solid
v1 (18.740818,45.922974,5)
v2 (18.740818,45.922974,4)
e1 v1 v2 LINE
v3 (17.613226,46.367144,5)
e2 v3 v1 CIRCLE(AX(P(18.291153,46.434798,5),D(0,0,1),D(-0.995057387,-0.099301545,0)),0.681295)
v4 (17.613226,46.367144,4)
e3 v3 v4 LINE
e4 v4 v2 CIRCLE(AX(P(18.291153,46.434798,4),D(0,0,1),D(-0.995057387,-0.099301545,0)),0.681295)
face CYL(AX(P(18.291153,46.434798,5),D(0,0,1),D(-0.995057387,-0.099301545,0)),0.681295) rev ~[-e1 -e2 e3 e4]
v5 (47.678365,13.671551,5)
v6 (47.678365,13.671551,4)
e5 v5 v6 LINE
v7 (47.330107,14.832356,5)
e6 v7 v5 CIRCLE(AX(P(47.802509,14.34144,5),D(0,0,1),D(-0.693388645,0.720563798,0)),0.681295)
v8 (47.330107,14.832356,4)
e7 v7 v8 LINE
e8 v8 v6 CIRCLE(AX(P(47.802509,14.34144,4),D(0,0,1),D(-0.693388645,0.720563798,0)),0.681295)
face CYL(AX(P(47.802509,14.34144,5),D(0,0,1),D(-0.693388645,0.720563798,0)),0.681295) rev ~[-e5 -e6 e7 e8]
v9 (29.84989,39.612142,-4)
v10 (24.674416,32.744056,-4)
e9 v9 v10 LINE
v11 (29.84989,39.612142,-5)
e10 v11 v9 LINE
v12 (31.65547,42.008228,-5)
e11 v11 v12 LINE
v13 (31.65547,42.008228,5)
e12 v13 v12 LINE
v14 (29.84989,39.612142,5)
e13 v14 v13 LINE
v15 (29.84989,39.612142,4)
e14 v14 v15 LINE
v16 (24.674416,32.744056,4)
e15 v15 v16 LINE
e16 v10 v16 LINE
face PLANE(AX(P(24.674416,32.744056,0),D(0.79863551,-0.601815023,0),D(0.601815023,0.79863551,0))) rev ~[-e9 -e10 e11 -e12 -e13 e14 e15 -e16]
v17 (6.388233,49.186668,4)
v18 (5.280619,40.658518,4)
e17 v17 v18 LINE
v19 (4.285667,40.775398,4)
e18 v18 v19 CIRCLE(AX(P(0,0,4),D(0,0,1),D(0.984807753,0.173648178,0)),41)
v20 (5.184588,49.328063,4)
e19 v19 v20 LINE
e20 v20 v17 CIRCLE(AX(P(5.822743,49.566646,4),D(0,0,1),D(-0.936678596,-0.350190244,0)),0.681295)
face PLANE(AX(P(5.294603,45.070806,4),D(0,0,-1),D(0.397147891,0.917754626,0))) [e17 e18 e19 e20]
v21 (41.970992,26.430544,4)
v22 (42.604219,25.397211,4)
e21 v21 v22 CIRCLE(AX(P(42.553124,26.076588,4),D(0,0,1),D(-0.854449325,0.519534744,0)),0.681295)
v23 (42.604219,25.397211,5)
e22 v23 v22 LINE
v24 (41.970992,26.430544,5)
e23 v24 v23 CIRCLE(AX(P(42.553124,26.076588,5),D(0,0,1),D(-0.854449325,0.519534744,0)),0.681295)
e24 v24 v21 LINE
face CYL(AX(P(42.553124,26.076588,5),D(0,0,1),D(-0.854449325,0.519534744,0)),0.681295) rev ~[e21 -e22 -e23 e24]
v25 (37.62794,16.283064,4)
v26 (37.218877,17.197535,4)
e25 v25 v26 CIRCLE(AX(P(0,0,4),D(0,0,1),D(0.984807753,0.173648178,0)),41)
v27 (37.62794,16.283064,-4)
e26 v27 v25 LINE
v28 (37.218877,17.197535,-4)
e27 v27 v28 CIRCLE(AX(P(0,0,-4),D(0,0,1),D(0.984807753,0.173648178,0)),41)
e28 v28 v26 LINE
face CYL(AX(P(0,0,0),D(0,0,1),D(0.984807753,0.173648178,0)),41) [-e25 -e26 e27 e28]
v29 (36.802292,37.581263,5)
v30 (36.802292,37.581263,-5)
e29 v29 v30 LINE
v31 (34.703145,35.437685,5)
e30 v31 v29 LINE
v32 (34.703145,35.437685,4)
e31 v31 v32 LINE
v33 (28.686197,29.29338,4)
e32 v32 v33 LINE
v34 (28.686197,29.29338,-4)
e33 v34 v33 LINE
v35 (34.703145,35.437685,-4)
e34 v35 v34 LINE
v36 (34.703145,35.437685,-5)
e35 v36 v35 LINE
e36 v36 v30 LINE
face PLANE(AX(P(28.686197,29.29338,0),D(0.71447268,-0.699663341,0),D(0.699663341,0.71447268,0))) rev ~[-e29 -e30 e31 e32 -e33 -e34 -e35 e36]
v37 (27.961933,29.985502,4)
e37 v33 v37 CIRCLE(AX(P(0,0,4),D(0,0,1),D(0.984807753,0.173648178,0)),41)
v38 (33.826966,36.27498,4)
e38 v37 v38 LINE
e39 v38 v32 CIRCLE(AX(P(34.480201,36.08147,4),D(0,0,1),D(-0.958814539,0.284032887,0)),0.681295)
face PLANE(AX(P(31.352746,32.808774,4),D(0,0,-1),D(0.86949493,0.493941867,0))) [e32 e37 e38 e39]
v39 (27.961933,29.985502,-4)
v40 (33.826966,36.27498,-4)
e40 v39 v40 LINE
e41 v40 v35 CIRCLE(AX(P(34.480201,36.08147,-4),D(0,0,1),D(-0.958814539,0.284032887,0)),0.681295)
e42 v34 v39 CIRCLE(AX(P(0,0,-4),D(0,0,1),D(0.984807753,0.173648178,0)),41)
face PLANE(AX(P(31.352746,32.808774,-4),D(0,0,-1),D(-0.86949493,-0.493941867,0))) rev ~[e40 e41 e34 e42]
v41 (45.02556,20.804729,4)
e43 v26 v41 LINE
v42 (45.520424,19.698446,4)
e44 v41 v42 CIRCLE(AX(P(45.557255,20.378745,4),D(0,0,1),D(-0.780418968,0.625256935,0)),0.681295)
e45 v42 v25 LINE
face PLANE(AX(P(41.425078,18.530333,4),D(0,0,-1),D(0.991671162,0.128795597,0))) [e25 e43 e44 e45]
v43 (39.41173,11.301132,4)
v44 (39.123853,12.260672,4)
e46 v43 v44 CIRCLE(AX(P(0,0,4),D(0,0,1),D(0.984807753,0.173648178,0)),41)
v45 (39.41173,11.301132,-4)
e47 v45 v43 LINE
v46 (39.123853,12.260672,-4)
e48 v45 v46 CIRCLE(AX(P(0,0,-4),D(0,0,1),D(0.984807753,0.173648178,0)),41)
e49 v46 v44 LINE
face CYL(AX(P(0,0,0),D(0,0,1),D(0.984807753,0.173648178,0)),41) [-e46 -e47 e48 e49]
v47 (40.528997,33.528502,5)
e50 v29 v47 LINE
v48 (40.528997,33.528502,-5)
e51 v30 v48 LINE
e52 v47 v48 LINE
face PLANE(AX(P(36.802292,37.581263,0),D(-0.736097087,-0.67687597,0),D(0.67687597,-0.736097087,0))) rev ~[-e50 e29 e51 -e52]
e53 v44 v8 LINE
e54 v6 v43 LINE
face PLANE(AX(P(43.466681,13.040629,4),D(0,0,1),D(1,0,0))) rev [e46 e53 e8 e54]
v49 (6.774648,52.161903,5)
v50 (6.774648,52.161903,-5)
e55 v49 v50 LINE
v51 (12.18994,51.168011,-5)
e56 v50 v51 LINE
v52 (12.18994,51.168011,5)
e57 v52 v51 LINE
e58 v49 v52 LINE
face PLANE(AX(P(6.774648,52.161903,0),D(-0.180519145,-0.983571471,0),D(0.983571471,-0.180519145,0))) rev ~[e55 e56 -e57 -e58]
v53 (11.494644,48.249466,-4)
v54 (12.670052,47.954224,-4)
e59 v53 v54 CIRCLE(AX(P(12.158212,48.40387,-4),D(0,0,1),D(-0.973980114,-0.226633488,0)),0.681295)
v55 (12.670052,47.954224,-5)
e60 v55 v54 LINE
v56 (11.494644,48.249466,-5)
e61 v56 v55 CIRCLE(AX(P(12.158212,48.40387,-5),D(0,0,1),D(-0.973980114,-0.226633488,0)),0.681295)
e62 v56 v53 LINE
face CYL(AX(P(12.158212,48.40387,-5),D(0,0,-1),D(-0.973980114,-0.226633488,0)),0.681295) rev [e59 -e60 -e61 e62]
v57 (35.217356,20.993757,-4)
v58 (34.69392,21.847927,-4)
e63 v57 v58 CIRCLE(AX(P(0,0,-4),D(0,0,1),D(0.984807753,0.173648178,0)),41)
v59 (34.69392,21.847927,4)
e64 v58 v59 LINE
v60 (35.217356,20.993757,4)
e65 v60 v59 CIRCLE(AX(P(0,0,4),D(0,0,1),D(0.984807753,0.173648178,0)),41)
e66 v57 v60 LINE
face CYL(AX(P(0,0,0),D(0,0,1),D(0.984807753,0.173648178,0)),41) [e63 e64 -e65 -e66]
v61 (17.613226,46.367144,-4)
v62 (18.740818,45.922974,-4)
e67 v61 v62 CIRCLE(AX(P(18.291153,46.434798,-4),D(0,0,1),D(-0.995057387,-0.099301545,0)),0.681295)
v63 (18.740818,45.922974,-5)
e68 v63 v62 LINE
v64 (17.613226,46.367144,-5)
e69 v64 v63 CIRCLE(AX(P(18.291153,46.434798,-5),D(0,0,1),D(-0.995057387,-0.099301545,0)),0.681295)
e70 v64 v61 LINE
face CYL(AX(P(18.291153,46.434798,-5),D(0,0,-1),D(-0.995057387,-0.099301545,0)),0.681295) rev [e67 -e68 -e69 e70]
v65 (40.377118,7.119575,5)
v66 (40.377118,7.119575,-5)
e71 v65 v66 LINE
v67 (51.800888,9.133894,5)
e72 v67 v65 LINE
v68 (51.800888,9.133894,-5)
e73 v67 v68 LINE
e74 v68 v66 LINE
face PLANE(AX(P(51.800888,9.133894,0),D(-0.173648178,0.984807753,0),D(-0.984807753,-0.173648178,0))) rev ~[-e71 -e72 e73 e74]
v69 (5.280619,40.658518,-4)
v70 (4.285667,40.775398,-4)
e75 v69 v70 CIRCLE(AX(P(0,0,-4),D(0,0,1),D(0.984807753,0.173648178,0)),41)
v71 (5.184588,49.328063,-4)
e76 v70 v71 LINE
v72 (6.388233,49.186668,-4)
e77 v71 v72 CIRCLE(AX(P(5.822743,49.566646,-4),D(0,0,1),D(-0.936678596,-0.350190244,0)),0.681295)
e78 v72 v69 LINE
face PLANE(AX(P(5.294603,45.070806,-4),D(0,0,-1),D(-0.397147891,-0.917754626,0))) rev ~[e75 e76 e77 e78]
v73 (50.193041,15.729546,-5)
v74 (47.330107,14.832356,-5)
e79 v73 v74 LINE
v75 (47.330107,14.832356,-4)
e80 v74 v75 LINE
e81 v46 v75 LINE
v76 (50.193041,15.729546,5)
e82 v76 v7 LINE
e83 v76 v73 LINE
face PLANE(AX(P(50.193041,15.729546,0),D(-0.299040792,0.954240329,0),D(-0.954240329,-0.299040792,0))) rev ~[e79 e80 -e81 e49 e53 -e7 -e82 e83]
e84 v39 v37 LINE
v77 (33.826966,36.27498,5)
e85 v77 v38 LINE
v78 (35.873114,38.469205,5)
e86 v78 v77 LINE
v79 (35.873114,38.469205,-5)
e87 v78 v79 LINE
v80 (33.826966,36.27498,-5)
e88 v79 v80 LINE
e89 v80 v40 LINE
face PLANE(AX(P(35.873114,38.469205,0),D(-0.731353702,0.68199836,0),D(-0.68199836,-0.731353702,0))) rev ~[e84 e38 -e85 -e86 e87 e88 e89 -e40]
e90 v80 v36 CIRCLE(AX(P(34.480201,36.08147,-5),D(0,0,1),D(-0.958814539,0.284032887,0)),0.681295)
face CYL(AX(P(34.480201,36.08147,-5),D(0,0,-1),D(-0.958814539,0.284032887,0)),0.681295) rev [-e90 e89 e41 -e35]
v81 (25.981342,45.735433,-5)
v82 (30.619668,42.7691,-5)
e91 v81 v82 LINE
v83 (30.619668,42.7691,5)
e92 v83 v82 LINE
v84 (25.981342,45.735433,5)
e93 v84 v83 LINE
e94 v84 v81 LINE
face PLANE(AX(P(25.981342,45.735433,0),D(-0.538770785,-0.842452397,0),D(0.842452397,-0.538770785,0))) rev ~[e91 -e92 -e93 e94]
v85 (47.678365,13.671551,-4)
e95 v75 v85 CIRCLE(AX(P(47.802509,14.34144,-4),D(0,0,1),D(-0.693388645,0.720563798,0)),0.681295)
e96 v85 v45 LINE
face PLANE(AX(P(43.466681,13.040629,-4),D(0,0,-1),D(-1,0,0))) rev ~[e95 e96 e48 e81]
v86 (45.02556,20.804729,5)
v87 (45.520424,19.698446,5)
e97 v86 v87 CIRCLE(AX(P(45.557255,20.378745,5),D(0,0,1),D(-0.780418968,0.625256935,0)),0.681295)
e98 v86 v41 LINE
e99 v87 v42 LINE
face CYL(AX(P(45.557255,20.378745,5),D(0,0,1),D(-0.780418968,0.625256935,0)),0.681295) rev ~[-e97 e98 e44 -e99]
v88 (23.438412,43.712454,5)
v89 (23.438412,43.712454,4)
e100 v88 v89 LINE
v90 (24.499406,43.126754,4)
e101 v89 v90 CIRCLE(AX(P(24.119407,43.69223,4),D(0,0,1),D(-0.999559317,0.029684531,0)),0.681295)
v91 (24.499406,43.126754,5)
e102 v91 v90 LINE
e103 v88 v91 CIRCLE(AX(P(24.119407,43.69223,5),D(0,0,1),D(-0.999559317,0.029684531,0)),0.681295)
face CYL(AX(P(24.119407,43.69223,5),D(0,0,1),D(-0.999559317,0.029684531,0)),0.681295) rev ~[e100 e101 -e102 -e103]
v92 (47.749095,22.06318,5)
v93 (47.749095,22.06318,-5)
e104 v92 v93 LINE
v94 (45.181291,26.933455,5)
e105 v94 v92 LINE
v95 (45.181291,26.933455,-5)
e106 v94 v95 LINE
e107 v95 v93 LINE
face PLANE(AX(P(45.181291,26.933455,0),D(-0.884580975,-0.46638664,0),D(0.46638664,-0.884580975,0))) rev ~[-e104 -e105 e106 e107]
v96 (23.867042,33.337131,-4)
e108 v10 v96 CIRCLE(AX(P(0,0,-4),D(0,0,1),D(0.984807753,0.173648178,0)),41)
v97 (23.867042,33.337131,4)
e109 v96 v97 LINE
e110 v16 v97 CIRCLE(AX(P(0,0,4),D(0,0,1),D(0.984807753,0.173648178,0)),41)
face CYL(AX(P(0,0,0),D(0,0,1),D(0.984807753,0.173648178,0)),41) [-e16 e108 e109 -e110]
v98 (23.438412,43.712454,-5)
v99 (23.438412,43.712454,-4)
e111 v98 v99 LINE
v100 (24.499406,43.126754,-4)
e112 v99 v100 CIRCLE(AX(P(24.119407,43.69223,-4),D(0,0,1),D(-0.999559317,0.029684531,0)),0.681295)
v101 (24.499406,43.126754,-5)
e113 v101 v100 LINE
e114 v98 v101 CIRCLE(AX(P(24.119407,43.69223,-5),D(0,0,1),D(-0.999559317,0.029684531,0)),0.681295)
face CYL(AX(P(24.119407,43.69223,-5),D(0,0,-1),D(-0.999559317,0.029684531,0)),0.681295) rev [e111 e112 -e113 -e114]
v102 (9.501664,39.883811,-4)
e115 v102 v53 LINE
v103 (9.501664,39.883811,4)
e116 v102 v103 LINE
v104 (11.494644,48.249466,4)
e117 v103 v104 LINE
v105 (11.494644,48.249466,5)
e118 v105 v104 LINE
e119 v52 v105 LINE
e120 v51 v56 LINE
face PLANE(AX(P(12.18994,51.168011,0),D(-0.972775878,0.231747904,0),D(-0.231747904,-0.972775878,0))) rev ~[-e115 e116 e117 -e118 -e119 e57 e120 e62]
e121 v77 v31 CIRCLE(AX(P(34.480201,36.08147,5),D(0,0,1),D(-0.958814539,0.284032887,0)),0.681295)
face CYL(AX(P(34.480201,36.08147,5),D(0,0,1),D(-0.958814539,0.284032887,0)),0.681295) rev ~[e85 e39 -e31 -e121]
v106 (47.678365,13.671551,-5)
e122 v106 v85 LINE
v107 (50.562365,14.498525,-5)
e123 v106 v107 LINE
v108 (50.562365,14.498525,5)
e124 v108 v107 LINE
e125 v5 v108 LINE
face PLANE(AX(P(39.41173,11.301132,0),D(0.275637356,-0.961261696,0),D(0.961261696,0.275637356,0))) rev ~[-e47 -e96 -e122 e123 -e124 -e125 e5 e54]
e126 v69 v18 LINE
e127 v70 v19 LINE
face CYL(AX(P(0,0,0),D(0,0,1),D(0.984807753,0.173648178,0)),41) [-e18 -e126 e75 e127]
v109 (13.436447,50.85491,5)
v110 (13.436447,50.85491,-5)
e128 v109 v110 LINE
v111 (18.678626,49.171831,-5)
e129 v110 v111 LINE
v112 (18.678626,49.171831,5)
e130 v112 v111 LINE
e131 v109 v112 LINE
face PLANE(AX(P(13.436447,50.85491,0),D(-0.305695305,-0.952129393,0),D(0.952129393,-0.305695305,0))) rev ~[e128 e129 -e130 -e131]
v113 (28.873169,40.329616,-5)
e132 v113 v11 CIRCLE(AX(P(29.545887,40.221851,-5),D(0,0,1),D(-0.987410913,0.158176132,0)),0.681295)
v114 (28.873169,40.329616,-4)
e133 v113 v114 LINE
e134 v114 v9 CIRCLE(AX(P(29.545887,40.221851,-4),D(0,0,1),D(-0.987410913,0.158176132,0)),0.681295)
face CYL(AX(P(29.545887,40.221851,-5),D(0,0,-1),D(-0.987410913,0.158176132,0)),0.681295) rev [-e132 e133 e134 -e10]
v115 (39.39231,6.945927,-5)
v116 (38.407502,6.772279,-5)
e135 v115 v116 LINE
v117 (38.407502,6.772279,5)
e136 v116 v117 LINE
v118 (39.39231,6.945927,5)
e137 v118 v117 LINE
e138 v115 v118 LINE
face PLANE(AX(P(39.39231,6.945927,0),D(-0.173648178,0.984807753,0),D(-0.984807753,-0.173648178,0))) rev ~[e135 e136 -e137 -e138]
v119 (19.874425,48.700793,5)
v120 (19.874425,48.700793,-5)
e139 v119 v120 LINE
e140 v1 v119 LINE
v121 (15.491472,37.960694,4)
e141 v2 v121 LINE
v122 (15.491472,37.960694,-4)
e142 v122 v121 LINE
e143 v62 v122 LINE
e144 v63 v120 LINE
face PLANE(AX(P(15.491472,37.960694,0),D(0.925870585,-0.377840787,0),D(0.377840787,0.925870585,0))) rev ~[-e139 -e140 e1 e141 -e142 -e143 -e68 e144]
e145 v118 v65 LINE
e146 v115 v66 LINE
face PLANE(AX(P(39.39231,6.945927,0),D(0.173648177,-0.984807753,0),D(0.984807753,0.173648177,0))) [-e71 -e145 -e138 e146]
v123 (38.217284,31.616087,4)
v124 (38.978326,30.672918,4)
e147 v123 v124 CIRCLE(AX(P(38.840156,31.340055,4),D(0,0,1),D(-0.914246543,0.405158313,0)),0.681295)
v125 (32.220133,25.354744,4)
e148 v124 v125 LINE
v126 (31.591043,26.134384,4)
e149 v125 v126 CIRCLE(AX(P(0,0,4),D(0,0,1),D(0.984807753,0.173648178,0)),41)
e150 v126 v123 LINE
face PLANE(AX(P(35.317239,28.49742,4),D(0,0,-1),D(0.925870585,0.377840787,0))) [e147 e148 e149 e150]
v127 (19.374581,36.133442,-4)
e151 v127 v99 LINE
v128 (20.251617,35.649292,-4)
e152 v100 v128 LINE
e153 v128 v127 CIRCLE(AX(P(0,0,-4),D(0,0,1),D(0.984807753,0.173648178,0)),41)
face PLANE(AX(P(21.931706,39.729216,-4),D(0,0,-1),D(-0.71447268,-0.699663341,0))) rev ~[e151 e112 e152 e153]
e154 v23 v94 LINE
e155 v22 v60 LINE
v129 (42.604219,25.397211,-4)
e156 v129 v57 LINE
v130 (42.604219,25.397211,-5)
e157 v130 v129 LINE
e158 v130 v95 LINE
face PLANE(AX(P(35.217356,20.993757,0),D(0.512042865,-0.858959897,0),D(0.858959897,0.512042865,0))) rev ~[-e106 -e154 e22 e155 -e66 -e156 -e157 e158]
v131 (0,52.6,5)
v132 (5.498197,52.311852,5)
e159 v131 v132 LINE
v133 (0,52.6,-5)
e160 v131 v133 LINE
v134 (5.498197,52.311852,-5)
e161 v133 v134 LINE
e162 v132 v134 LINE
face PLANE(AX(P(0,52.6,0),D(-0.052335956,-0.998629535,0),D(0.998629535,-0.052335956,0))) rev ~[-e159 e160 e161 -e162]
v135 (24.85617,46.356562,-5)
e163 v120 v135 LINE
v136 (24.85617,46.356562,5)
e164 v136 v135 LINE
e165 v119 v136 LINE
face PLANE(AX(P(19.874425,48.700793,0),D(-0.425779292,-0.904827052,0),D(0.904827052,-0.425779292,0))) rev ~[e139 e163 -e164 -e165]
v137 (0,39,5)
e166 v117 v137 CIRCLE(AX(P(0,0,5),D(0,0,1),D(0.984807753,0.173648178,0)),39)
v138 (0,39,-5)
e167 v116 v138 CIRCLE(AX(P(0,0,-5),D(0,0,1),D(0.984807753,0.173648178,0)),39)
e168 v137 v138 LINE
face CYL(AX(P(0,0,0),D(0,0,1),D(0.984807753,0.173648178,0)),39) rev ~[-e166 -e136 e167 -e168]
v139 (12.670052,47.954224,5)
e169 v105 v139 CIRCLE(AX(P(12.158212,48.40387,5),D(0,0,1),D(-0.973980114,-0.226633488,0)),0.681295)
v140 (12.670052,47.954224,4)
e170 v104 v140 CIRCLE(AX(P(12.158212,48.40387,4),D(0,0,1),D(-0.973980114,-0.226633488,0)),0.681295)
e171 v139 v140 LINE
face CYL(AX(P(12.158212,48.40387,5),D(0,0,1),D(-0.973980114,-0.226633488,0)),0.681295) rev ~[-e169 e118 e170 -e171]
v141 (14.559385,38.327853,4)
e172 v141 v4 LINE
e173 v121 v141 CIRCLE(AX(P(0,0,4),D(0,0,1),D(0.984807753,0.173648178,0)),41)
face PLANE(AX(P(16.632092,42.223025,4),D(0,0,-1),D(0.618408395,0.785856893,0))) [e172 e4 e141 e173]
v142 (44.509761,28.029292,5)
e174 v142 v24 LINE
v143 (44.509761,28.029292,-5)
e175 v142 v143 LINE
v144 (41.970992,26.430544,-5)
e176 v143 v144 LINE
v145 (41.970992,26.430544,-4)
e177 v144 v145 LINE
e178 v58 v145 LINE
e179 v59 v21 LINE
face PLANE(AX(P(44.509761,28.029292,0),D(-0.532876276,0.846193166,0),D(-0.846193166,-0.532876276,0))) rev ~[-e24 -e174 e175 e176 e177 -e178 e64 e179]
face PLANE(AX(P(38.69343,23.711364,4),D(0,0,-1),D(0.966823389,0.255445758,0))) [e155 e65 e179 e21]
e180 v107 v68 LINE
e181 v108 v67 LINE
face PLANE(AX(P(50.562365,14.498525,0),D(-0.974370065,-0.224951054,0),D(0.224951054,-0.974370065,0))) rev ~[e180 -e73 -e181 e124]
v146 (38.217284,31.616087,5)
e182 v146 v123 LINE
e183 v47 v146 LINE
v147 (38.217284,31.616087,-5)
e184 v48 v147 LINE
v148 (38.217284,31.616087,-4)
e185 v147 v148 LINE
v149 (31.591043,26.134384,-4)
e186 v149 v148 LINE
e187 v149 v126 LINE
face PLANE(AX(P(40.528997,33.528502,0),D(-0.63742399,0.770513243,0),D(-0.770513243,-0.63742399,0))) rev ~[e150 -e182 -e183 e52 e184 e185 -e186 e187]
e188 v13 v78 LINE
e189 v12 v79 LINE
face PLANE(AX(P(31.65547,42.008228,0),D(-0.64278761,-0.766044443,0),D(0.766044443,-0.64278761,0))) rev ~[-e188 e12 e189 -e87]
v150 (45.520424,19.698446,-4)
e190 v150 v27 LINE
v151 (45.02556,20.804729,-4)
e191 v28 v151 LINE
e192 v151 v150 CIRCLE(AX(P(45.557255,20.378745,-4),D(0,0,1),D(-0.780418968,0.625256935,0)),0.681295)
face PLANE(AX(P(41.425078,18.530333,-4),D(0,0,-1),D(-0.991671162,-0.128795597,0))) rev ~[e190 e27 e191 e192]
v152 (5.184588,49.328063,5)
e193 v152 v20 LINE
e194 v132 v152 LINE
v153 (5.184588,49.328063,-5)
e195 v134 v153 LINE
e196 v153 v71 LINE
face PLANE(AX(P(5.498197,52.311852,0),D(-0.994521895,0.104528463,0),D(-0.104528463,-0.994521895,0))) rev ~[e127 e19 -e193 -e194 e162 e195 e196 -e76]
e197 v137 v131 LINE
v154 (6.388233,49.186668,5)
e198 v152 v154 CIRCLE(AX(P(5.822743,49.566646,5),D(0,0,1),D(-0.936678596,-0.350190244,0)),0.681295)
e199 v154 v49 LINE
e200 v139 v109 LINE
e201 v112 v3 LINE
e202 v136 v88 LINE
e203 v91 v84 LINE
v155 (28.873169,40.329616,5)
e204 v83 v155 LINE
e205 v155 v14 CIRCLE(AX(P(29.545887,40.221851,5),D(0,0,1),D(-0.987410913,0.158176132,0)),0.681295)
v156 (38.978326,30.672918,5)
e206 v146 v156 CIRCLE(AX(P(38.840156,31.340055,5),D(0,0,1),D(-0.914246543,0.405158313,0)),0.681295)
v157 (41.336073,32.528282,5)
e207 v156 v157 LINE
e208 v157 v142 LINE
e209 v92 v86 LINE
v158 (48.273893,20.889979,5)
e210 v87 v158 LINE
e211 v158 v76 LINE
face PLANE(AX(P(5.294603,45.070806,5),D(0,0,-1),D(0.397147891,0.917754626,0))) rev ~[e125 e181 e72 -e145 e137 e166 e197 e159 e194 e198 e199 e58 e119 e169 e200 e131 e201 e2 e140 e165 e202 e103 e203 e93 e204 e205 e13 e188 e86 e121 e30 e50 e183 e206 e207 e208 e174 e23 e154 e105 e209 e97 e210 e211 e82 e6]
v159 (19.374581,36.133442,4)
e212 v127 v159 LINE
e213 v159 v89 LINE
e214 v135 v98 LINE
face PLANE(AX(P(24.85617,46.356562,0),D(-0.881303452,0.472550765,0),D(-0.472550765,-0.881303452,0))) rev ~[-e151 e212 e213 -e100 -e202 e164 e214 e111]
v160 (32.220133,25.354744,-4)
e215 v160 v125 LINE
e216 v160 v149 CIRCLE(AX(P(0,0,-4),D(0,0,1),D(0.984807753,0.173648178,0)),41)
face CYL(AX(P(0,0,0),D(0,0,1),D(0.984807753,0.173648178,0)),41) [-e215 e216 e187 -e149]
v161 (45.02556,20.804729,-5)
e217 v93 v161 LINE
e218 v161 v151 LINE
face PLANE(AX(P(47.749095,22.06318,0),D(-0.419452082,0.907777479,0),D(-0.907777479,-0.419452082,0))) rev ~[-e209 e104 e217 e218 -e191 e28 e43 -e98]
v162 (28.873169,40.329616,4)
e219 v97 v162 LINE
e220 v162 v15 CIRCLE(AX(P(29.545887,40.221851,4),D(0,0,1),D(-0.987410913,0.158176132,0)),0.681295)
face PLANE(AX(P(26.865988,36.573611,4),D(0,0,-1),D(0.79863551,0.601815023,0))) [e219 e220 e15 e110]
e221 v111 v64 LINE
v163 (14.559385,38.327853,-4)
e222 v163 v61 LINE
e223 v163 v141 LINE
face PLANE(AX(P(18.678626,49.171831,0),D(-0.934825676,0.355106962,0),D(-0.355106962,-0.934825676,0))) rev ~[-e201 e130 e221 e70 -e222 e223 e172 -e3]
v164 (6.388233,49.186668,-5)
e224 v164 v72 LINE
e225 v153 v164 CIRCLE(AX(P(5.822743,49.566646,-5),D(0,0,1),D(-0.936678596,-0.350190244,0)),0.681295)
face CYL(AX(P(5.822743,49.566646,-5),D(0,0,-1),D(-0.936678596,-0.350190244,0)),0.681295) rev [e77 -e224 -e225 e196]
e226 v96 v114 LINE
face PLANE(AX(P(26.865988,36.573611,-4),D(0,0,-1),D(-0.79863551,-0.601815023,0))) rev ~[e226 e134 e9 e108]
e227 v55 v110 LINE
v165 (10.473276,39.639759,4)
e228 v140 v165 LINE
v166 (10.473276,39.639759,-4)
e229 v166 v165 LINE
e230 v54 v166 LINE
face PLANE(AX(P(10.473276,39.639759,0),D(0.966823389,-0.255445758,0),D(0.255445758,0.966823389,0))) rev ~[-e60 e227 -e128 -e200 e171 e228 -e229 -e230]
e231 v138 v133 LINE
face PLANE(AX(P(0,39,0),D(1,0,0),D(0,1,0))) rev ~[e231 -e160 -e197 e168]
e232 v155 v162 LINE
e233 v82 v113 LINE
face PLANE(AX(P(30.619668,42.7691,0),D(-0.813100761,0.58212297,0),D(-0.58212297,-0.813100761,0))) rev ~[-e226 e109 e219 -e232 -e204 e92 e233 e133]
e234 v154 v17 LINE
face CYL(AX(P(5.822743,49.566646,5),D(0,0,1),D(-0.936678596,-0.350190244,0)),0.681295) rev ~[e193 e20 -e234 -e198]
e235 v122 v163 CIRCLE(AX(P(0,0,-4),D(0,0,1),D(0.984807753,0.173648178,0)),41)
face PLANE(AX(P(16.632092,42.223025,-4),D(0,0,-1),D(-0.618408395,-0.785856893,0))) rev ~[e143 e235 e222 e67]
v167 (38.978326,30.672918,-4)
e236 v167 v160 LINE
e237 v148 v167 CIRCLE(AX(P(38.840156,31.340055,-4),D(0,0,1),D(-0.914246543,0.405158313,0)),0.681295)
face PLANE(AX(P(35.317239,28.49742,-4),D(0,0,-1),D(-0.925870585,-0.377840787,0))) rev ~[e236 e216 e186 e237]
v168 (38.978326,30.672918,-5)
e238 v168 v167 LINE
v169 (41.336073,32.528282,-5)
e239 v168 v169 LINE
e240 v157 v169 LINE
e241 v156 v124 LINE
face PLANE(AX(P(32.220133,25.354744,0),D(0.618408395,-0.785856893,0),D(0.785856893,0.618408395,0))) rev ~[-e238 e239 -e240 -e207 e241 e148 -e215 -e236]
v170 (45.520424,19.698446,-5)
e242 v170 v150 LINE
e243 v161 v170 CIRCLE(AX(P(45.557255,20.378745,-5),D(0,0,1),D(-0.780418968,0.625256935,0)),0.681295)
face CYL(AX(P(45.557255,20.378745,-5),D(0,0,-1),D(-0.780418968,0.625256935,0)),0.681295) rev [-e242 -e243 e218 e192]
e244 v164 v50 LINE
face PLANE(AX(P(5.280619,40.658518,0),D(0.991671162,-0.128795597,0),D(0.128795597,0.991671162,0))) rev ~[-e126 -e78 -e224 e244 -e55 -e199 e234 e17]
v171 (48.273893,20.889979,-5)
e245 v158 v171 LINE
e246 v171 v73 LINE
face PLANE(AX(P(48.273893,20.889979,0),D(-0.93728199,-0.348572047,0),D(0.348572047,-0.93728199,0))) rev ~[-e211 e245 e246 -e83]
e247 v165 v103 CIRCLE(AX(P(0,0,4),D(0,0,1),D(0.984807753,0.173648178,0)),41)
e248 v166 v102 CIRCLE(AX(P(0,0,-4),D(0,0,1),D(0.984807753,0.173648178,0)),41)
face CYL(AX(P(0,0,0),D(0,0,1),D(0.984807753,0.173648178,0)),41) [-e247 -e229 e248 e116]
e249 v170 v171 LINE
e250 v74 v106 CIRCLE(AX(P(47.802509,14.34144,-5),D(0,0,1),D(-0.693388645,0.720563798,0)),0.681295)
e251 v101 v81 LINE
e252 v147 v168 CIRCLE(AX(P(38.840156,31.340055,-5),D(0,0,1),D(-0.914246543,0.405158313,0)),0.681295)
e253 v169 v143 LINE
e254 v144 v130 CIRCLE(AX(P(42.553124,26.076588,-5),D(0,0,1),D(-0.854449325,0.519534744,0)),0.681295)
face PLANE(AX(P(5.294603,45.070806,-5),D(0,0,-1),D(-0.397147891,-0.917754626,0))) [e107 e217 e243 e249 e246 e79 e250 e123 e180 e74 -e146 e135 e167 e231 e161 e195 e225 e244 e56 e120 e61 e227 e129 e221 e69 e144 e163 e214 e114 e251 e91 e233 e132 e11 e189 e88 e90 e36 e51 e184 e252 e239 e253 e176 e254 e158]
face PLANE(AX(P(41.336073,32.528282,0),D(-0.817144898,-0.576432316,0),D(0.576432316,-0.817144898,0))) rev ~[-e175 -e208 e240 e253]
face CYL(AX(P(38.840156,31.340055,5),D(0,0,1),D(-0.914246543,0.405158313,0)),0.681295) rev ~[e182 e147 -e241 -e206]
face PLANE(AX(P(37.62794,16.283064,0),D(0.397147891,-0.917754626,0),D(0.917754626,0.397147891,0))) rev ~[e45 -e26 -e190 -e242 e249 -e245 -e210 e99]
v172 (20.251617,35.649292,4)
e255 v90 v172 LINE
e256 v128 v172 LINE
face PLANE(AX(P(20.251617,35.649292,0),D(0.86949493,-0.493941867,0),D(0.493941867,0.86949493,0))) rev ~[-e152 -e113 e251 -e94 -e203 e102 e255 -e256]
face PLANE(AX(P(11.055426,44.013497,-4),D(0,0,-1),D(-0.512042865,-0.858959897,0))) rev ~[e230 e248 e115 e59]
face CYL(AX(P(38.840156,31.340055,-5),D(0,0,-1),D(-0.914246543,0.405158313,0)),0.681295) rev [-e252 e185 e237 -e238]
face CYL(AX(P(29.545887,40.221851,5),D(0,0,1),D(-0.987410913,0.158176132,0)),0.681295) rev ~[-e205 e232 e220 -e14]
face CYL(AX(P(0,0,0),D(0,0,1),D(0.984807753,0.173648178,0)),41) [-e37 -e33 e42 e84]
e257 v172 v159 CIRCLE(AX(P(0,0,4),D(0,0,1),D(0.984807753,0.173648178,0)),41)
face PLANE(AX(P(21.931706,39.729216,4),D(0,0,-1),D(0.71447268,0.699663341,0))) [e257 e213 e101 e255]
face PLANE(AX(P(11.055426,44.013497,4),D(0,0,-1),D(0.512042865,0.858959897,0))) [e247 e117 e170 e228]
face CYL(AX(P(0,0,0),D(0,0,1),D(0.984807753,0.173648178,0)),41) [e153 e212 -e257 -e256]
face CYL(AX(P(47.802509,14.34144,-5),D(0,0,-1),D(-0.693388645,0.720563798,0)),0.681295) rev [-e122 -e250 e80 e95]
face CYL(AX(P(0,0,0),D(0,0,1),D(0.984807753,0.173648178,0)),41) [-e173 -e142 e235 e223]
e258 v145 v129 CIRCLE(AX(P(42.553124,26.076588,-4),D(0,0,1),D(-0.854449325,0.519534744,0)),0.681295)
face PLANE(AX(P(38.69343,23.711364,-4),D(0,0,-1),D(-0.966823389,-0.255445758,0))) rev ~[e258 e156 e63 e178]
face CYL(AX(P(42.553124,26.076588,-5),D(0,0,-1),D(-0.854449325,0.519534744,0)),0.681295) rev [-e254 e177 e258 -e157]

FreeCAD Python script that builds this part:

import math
import FreeCAD as App
import Part
import Sketcher
Q = App.Units.Quantity

doc = App.newDocument("Part")
params = doc.addObject("Spreadsheet::Sheet", "Params")
for row, (alias, value) in enumerate([
    ("sketch1_radius", "40 mm"),
    ("sketch1_radius2", "41 mm"),
    ("pad1_length", "10 mm"),
    ("sketch2_radius", "41 mm"),
    ("sketch2_height", "11.6 mm"),
    ("sketch2_length", "11.6 mm"),
    ("pad2_length", "10 mm"),
    ("sketch3_radius", "39 mm"),
    ("sketch3_radius2", "40 mm"),
    ("pad3_length", "10 mm"),
    ("pad4_length", "1 mm"),
    ("pad5_length", "1 mm"),
    ("pad6_length", "1 mm"),
    ("pad7_length", "1 mm"),
    ("pad8_length", "1 mm"),
    ("pad9_length", "1 mm"),
    ("pad10_length", "1 mm"),
    ("pad11_length", "1 mm"),
    ("pad12_length", "1 mm"),
    ("pad13_length", "1 mm"),
], start=1):
    params.set(f"A{row}", alias)
    params.set(f"B{row}", "=" + value)
    params.setAlias(f"B{row}", alias)

body = doc.addObject("PartDesign::Body", "Body")

# Sketch on XY plane
sketch1 = body.newObject("Sketcher::SketchObject", "Sketch")
sketch1.AttachmentSupport = (doc.getObject("XY_Plane"), [""])
sketch1.MapMode = "FlatFace"
sketch1.addGeometry([
    Part.LineSegment(App.Vector(0, 41, 0), App.Vector(0, 40, 0)),
    Part.ArcOfCircle(Part.Circle(App.Vector(0, 0, 0), App.Vector(0, 0, 1), 40), math.radians(10), math.radians(90)),
    Part.LineSegment(App.Vector(39.4, 6.9, 0), App.Vector(40.4, 7.1, 0)),
    Part.ArcOfCircle(Part.Circle(App.Vector(0, 0, 0), App.Vector(0, 0, 1), 41), math.radians(10), math.radians(90)),
], False)
sketch1.addConstraint([
    Sketcher.Constraint("Coincident", 0, 2, 1, 2),
    Sketcher.Constraint("Coincident", 1, 1, 2, 1),
    Sketcher.Constraint("Coincident", 2, 2, 3, 1),
    Sketcher.Constraint("Coincident", 3, 2, 0, 1),
    Sketcher.Constraint("Vertical", 0),
    Sketcher.Constraint("Coincident", 1, 3, -1, 1),
    Sketcher.Constraint("Coincident", 3, 3, -1, 1),
    Sketcher.Constraint("PointOnObject", 0, 2, -2),
    Sketcher.Constraint("Radius", 1, 40.0),
    Sketcher.Constraint("Radius", 3, 41.0),
    Sketcher.Constraint("Angle", 2, Q("10 deg")),
    Sketcher.Constraint("DistanceX", -1, 1, 1, 1, 39.39231),
])
sketch1.setExpression("Constraints[8]", "Params.sketch1_radius")
sketch1.setExpression("Constraints[9]", "Params.sketch1_radius2")
pad1 = body.newObject("PartDesign::Pad", "Pad")
pad1.Profile = sketch1
pad1.setExpression("Length", "Params.pad1_length")
pad1.Midplane = True

# Sketch on XY plane
sketch2 = body.newObject("Sketcher::SketchObject", "Sketch001")
sketch2.AttachmentSupport = (doc.getObject("XY_Plane"), [""])
sketch2.MapMode = "FlatFace"
sketch2.addGeometry([
    Part.LineSegment(App.Vector(0, 52.6, 0), App.Vector(0, 41, 0)),
    Part.ArcOfCircle(Part.Circle(App.Vector(0, 0, 0), App.Vector(0, 0, 1), 41), math.radians(84), math.radians(90)),
    Part.LineSegment(App.Vector(4.3, 40.8, 0), App.Vector(5.5, 52.3, 0)),
    Part.LineSegment(App.Vector(5.5, 52.3, 0), App.Vector(0, 52.6, 0)),
], False)
sketch2.addConstraint([
    Sketcher.Constraint("Coincident", 0, 2, 1, 2),
    Sketcher.Constraint("Coincident", 1, 1, 2, 1),
    Sketcher.Constraint("Coincident", 2, 2, 3, 1),
    Sketcher.Constraint("Coincident", 3, 2, 0, 1),
    Sketcher.Constraint("Vertical", 0),
    Sketcher.Constraint("Coincident", 1, 3, -1, 1),
    Sketcher.Constraint("PointOnObject", 0, 2, -2),
    Sketcher.Constraint("Radius", 1, 41.0),
    Sketcher.Constraint("Angle", 2, Q("84 deg")),
    Sketcher.Constraint("Angle", 3, Q("177 deg")),
    Sketcher.Constraint("DistanceY", 0, 2, 0, 1, 11.6),
    Sketcher.Constraint("Distance", 2, 11.6),
])
sketch2.setExpression("Constraints[7]", "Params.sketch2_radius")
sketch2.setExpression("Constraints[10]", "Params.sketch2_height")
sketch2.setExpression("Constraints[11]", "Params.sketch2_length")
pad2 = body.newObject("PartDesign::Pad", "Pad001")
pad2.Profile = sketch2
pad2.setExpression("Length", "Params.pad2_length")
pad2.Midplane = True
doc.recompute()

polarpattern = body.newObject("PartDesign::PolarPattern", "PolarPattern")
polarpattern.Originals = [pad2]
polarpattern.Axis = (doc.getObject("Z_Axis"), [""])
polarpattern.Angle = 74
polarpattern.Occurrences = 11
polarpattern.Reversed = True
body.Tip = polarpattern

# Sketch on XY plane
sketch3 = body.newObject("Sketcher::SketchObject", "Sketch002")
sketch3.AttachmentSupport = (doc.getObject("XY_Plane"), [""])
sketch3.MapMode = "FlatFace"
sketch3.addGeometry([
    Part.ArcOfCircle(Part.Circle(App.Vector(0, 0, 0), App.Vector(0, 0, 1), 39), math.radians(10), math.radians(90)),
    Part.LineSegment(App.Vector(38.4, 6.8, 0), App.Vector(39.4, 6.9, 0)),
    Part.ArcOfCircle(Part.Circle(App.Vector(0, 0, 0), App.Vector(0, 0, 1), 40), math.radians(10), math.radians(90)),
    Part.LineSegment(App.Vector(0, 40, 0), App.Vector(0, 39, 0)),
], False)
sketch3.addConstraint([
    Sketcher.Constraint("Coincident", 0, 1, 1, 1),
    Sketcher.Constraint("Coincident", 1, 2, 2, 1),
    Sketcher.Constraint("Coincident", 2, 2, 3, 1),
    Sketcher.Constraint("Coincident", 3, 2, 0, 2),
    Sketcher.Constraint("Vertical", 3),
    Sketcher.Constraint("Coincident", 0, 3, -1, 1),
    Sketcher.Constraint("Coincident", 2, 3, -1, 1),
    Sketcher.Constraint("PointOnObject", 2, 2, -2),
    Sketcher.Constraint("Radius", 0, 39.0),
    Sketcher.Constraint("Radius", 2, 40.0),
    Sketcher.Constraint("Angle", 1, Q("10 deg")),
    Sketcher.Constraint("DistanceY", -1, 1, 0, 1, 6.772279),
])
sketch3.setExpression("Constraints[8]", "Params.sketch3_radius")
sketch3.setExpression("Constraints[9]", "Params.sketch3_radius2")
pad3 = body.newObject("PartDesign::Pad", "Pad002")
pad3.Profile = sketch3
pad3.setExpression("Length", "Params.pad3_length")
pad3.Midplane = True

# Sketch on XY plane
sketch4 = body.newObject("Sketcher::SketchObject", "Sketch003")
sketch4.AttachmentSupport = (doc.getObject("XY_Plane"), [""])
sketch4.MapMode = "FlatFace"
sketch4.AttachmentOffset = App.Placement(App.Vector(0, 0, -5), App.Rotation())
sketch4.addGeometry([
    Part.LineSegment(App.Vector(47.7, 13.7, 0), App.Vector(39.4, 11.3, 0)),
    Part.LineSegment(App.Vector(39.4, 11.3, 0), App.Vector(39.1, 12.3, 0)),
    Part.LineSegment(App.Vector(39.1, 12.3, 0), App.Vector(47.3, 14.8, 0)),
    Part.ArcOfCircle(Part.Circle(App.Vector(47.8, 14.3, 0), App.Vector(0, 0, 1), 0.7), math.radians(134), math.radians(260)),
], False)
sketch4.addConstraint([
    Sketcher.Constraint("Coincident", 0, 2, 1, 1),
    Sketcher.Constraint("Coincident", 1, 2, 2, 1),
    Sketcher.Constraint("Coincident", 2, 2, 3, 1),
    Sketcher.Constraint("Coincident", 3, 2, 0, 1),
    Sketcher.Constraint("Equal", 0, 2),
    Sketcher.Constraint("Angle", 0, Q("-164 deg")),
    Sketcher.Constraint("Angle", 1, Q("106.7 deg")),
    Sketcher.Constraint("Angle", 2, Q("17.4 deg")),
    Sketcher.Constraint("Radius", 3, 0.681295),
    Sketcher.Constraint("DistanceX", -1, 1, 3, 3, 47.802509),
    Sketcher.Constraint("DistanceY", -1, 1, 3, 3, 14.34144),
    Sketcher.Constraint("DistanceX", -1, 1, 0, 2, 39.41173),
    Sketcher.Constraint("DistanceY", -1, 1, 0, 2, 11.301132),
])
pad4 = body.newObject("PartDesign::Pad", "Pad003")
pad4.Profile = sketch4
pad4.setExpression("Length", "Params.pad4_length")
doc.recompute()

mirrored = body.newObject("PartDesign::Mirrored", "Mirrored")
mirrored.Originals = [pad4]
mirrored.MirrorPlane = (doc.getObject("XY_Plane"), [""])
body.Tip = mirrored
doc.recompute()

polarpattern2 = body.newObject("PartDesign::PolarPattern", "PolarPattern001")
polarpattern2.Originals = [pad4]
polarpattern2.Axis = (doc.getObject("Z_Axis"), [""])
polarpattern2.Angle = 66.6
polarpattern2.Occurrences = 10
body.Tip = polarpattern2

# Sketch on XY plane
sketch5 = body.newObject("Sketcher::SketchObject", "Sketch004")
sketch5.AttachmentSupport = (doc.getObject("XY_Plane"), [""])
sketch5.MapMode = "FlatFace"
sketch5.AttachmentOffset = App.Placement(App.Vector(0, 0, 5), App.Rotation())
sketch5.addGeometry([
    Part.LineSegment(App.Vector(37.6, 16.3, 0), App.Vector(45.5, 19.7, 0)),
    Part.ArcOfCircle(Part.Circle(App.Vector(45.6, 20.4, 0), App.Vector(0, 0, 1), 0.7), math.radians(141), math.radians(267)),
    Part.LineSegment(App.Vector(45, 20.8, 0), App.Vector(37.2, 17.2, 0)),
    Part.LineSegment(App.Vector(37.2, 17.2, 0), App.Vector(37.6, 16.3, 0)),
], False)
sketch5.addConstraint([
    Sketcher.Constraint("Coincident", 0, 2, 1, 2),
    Sketcher.Constraint("Coincident", 1, 1, 2, 1),
    Sketcher.Constraint("Coincident", 2, 2, 3, 1),
    Sketcher.Constraint("Coincident", 3, 2, 0, 1),
    Sketcher.Constraint("Equal", 0, 2),
    Sketcher.Constraint("Angle", 0, Q("23.4 deg")),
    Sketcher.Constraint("Angle", 2, Q("-155.2 deg")),
    Sketcher.Constraint("Angle", 3, Q("-65.9 deg")),
    Sketcher.Constraint("Radius", 1, 0.681295),
    Sketcher.Constraint("DistanceY", 0, 2, 1, 3, 0.680299),
    Sketcher.Constraint("DistanceX", -1, 1, 1, 1, 45.02556),
    Sketcher.Constraint("DistanceY", -1, 1, 1, 1, 20.804729),
    Sketcher.Constraint("DistanceX", -1, 1, 3, 2, 37.62794),
])
pad5 = body.newObject("PartDesign::Pad", "Pad004")
pad5.Profile = sketch5
pad5.setExpression("Length", "Params.pad5_length")
pad5.Reversed = True

# Sketch on XY plane
sketch6 = body.newObject("Sketcher::SketchObject", "Sketch005")
sketch6.AttachmentSupport = (doc.getObject("XY_Plane"), [""])
sketch6.MapMode = "FlatFace"
sketch6.AttachmentOffset = App.Placement(App.Vector(0, 0, 5), App.Rotation())
sketch6.addGeometry([
    Part.LineSegment(App.Vector(35.2, 21, 0), App.Vector(42.6, 25.4, 0)),
    Part.ArcOfCircle(Part.Circle(App.Vector(42.6, 26.1, 0), App.Vector(0, 0, 1), 0.7), math.radians(149), math.radians(274)),
    Part.LineSegment(App.Vector(42, 26.4, 0), App.Vector(34.7, 21.8, 0)),
    Part.LineSegment(App.Vector(34.7, 21.8, 0), App.Vector(35.2, 21, 0)),
], False)
sketch6.addConstraint([
    Sketcher.Constraint("Coincident", 0, 2, 1, 2),
    Sketcher.Constraint("Coincident", 1, 1, 2, 1),
    Sketcher.Constraint("Coincident", 2, 2, 3, 1),
    Sketcher.Constraint("Coincident", 3, 2, 0, 1),
    Sketcher.Constraint("Equal", 0, 2),
    Sketcher.Constraint("Angle", 0, Q("30.8 deg")),
    Sketcher.Constraint("Angle", 2, Q("-147.8 deg")),
    Sketcher.Constraint("Angle", 3, Q("-58.5 deg")),
    Sketcher.Constraint("Radius", 1, 0.681295),
    Sketcher.Constraint("DistanceX", 2, 2, 0, 2, 7.910299),
    Sketcher.Constraint("DistanceX", -1, 1, 0, 2, 42.604219),
    Sketcher.Constraint("DistanceY", -1, 1, 0, 2, 25.397211),
    Sketcher.Constraint("DistanceX", -1, 1, 1, 1, 41.970992),
])
pad6 = body.newObject("PartDesign::Pad", "Pad005")
pad6.Profile = sketch6
pad6.setExpression("Length", "Params.pad6_length")
pad6.Reversed = True

# Sketch on XY plane
sketch7 = body.newObject("Sketcher::SketchObject", "Sketch006")
sketch7.AttachmentSupport = (doc.getObject("XY_Plane"), [""])
sketch7.MapMode = "FlatFace"
sketch7.AttachmentOffset = App.Placement(App.Vector(0, 0, 5), App.Rotation())
sketch7.addGeometry([
    Part.LineSegment(App.Vector(32.2, 25.4, 0), App.Vector(39, 30.7, 0)),
    Part.ArcOfCircle(Part.Circle(App.Vector(38.8, 31.3, 0), App.Vector(0, 0, 1), 0.7), math.radians(156), math.radians(282)),
    Part.LineSegment(App.Vector(38.2, 31.6, 0), App.Vector(31.6, 26.1, 0)),
    Part.LineSegment(App.Vector(31.6, 26.1, 0), App.Vector(32.2, 25.4, 0)),
], False)
sketch7.addConstraint([
    Sketcher.Constraint("Coincident", 0, 2, 1, 2),
    Sketcher.Constraint("Coincident", 1, 1, 2, 1),
    Sketcher.Constraint("Coincident", 2, 2, 3, 1),
    Sketcher.Constraint("Coincident", 3, 2, 0, 1),
    Sketcher.Constraint("Equal", 0, 2),
    Sketcher.Constraint("Angle", 0, Q("38.2 deg")),
    Sketcher.Constraint("Angle", 2, Q("-140.4 deg")),
    Sketcher.Constraint("Angle", 3, Q("-51.1 deg")),
    Sketcher.Constraint("Radius", 1, 0.681295),
    Sketcher.Constraint("DistanceX", 1, 3, 0, 2, 0.13817),
    Sketcher.Constraint("DistanceX", 2, 2, 1, 1, 6.626241),
    Sketcher.Constraint("DistanceX", -1, 1, 1, 3, 38.840156),
    Sketcher.Constraint("DistanceY", -1, 1, 1, 3, 31.340055),
])
pad7 = body.newObject("PartDesign::Pad", "Pad006")
pad7.Profile = sketch7
pad7.setExpression("Length", "Params.pad7_length")
pad7.Reversed = True

# Sketch on XY plane
sketch8 = body.newObject("Sketcher::SketchObject", "Sketch007")
sketch8.AttachmentSupport = (doc.getObject("XY_Plane"), [""])
sketch8.MapMode = "FlatFace"
sketch8.AttachmentOffset = App.Placement(App.Vector(0, 0, 5), App.Rotation())
sketch8.addGeometry([
    Part.LineSegment(App.Vector(28.7, 29.3, 0), App.Vector(34.7, 35.4, 0)),
    Part.ArcOfCircle(Part.Circle(App.Vector(34.5, 36.1, 0), App.Vector(0, 0, 1), 0.7), math.radians(163), math.radians(289)),
    Part.LineSegment(App.Vector(33.8, 36.3, 0), App.Vector(28, 30, 0)),
    Part.LineSegment(App.Vector(28, 30, 0), App.Vector(28.7, 29.3, 0)),
], False)
sketch8.addConstraint([
    Sketcher.Constraint("Coincident", 0, 2, 1, 2),
    Sketcher.Constraint("Coincident", 1, 1, 2, 1),
    Sketcher.Constraint("Coincident", 2, 2, 3, 1),
    Sketcher.Constraint("Coincident", 3, 2, 0, 1),
    Sketcher.Constraint("Equal", 0, 2),
    Sketcher.Constraint("Angle", 2, Q("-133 deg")),
    Sketcher.Constraint("Angle", 0, Q("45.6 deg")),
    Sketcher.Constraint("Angle", 3, Q("-43.7 deg")),
    Sketcher.Constraint("Radius", 1, 0.681295),
    Sketcher.Constraint("DistanceX", -1, 1, 1, 3, 34.480201),
    Sketcher.Constraint("DistanceY", -1, 1, 2, 2, 29.985502),
    Sketcher.Constraint("DistanceY", 3, 2, 1, 1, 6.9816),
    Sketcher.Constraint("DistanceY", -1, 1, 1, 3, 36.08147),
])
pad8 = body.newObject("PartDesign::Pad", "Pad007")
pad8.Profile = sketch8
pad8.setExpression("Length", "Params.pad8_length")
pad8.Reversed = True

# Sketch on XY plane
sketch9 = body.newObject("Sketcher::SketchObject", "Sketch008")
sketch9.AttachmentSupport = (doc.getObject("XY_Plane"), [""])
sketch9.MapMode = "FlatFace"
sketch9.AttachmentOffset = App.Placement(App.Vector(0, 0, 5), App.Rotation())
sketch9.addGeometry([
    Part.LineSegment(App.Vector(24.7, 32.7, 0), App.Vector(29.8, 39.6, 0)),
    Part.ArcOfCircle(Part.Circle(App.Vector(29.5, 40.2, 0), App.Vector(0, 0, 1), 0.7), math.radians(171), math.radians(297)),
    Part.LineSegment(App.Vector(28.9, 40.3, 0), App.Vector(23.9, 33.3, 0)),
    Part.LineSegment(App.Vector(23.9, 33.3, 0), App.Vector(24.7, 32.7, 0)),
], False)
sketch9.addConstraint([
    Sketcher.Constraint("Coincident", 0, 2, 1, 2),
    Sketcher.Constraint("Coincident", 1, 1, 2, 1),
    Sketcher.Constraint("Coincident", 2, 2, 3, 1),
    Sketcher.Constraint("Coincident", 3, 2, 0, 1),
    Sketcher.Constraint("Equal", 0, 2),
    Sketcher.Constraint("Angle", 0, Q("53 deg")),
    Sketcher.Constraint("Angle", 2, Q("-125.6 deg")),
    Sketcher.Constraint("Angle", 3, Q("-36.3 deg")),
    Sketcher.Constraint("Radius", 1, 0.681295),
    Sketcher.Constraint("DistanceY", -1, 1, 1, 3, 40.221851),
    Sketcher.Constraint("DistanceX", -1, 1, 0, 2, 29.84989),
    Sketcher.Constraint("DistanceX", -1, 1, 1, 1, 28.873169),
    Sketcher.Constraint("DistanceX", -1, 1, 2, 2, 23.867042),
])
pad9 = body.newObject("PartDesign::Pad", "Pad008")
pad9.Profile = sketch9
pad9.setExpression("Length", "Params.pad9_length")
pad9.Reversed = True

# Sketch on XY plane
sketch10 = body.newObject("Sketcher::SketchObject", "Sketch009")
sketch10.AttachmentSupport = (doc.getObject("XY_Plane"), [""])
sketch10.MapMode = "FlatFace"
sketch10.AttachmentOffset = App.Placement(App.Vector(0, 0, 5), App.Rotation())
sketch10.addGeometry([
    Part.LineSegment(App.Vector(20.3, 35.6, 0), App.Vector(24.5, 43.1, 0)),
    Part.ArcOfCircle(Part.Circle(App.Vector(24.1, 43.7, 0), App.Vector(0, 0, 1), 0.7), math.radians(178), math.radians(304)),
    Part.LineSegment(App.Vector(23.4, 43.7, 0), App.Vector(19.4, 36.1, 0)),
    Part.LineSegment(App.Vector(19.4, 36.1, 0), App.Vector(20.3, 35.6, 0)),
], False)
sketch10.addConstraint([
    Sketcher.Constraint("Coincident", 0, 2, 1, 2),
    Sketcher.Constraint("Coincident", 1, 1, 2, 1),
    Sketcher.Constraint("Coincident", 2, 2, 3, 1),
    Sketcher.Constraint("Coincident", 3, 2, 0, 1),
    Sketcher.Constraint("Equal", 0, 2),
    Sketcher.Constraint("Angle", 0, Q("60.4 deg")),
    Sketcher.Constraint("Angle", 2, Q("-118.2 deg")),
    Sketcher.Constraint("Angle", 3, Q("-28.9 deg")),
    Sketcher.Constraint("DistanceX", 1, 3, 0, 2, 0.379999),
    Sketcher.Constraint("Radius", 1, 0.681295),
    Sketcher.Constraint("DistanceY", -1, 1, 1, 3, 43.69223),
    Sketcher.Constraint("DistanceX", -1, 1, 2, 2, 19.374581),
    Sketcher.Constraint("DistanceY", -1, 1, 2, 2, 36.133442),
])
pad10 = body.newObject("PartDesign::Pad", "Pad009")
pad10.Profile = sketch10
pad10.setExpression("Length", "Params.pad10_length")
pad10.Reversed = True

# Sketch on XY plane
sketch11 = body.newObject("Sketcher::SketchObject", "Sketch010")
sketch11.AttachmentSupport = (doc.getObject("XY_Plane"), [""])
sketch11.MapMode = "FlatFace"
sketch11.AttachmentOffset = App.Placement(App.Vector(0, 0, 5), App.Rotation())
sketch11.addGeometry([
    Part.LineSegment(App.Vector(15.5, 38, 0), App.Vector(18.7, 45.9, 0)),
    Part.ArcOfCircle(Part.Circle(App.Vector(18.3, 46.4, 0), App.Vector(0, 0, 1), 0.7), math.radians(-174), math.radians(-49)),
    Part.LineSegment(App.Vector(17.6, 46.4, 0), App.Vector(14.6, 38.3, 0)),
    Part.LineSegment(App.Vector(14.6, 38.3, 0), App.Vector(15.5, 38, 0)),
], False)
sketch11.addConstraint([
    Sketcher.Constraint("Coincident", 0, 2, 1, 2),
    Sketcher.Constraint("Coincident", 1, 1, 2, 1),
    Sketcher.Constraint("Coincident", 2, 2, 3, 1),
    Sketcher.Constraint("Coincident", 3, 2, 0, 1),
    Sketcher.Constraint("Equal", 0, 2),
    Sketcher.Constraint("Angle", 0, Q("67.8 deg")),
    Sketcher.Constraint("Angle", 2, Q("-110.8 deg")),
    Sketcher.Constraint("Angle", 3, Q("-21.5 deg")),
    Sketcher.Constraint("Radius", 1, 0.681295),
    Sketcher.Constraint("DistanceX", -1, 1, 0, 2, 18.740818),
    Sketcher.Constraint("DistanceY", 0, 2, 1, 1, 0.444171),
    Sketcher.Constraint("DistanceX", 2, 2, 1, 1, 3.05384),
    Sketcher.Constraint("DistanceY", -1, 1, 1, 3, 46.434798),
])
pad11 = body.newObject("PartDesign::Pad", "Pad010")
pad11.Profile = sketch11
pad11.setExpression("Length", "Params.pad11_length")
pad11.Reversed = True

# Sketch on XY plane
sketch12 = body.newObject("Sketcher::SketchObject", "Sketch011")
sketch12.AttachmentSupport = (doc.getObject("XY_Plane"), [""])
sketch12.MapMode = "FlatFace"
sketch12.AttachmentOffset = App.Placement(App.Vector(0, 0, 5), App.Rotation())
sketch12.addGeometry([
    Part.LineSegment(App.Vector(10.5, 39.6, 0), App.Vector(12.7, 48, 0)),
    Part.ArcOfCircle(Part.Circle(App.Vector(12.2, 48.4, 0), App.Vector(0, 0, 1), 0.7), math.radians(-167), math.radians(-41)),
    Part.LineSegment(App.Vector(11.5, 48.2, 0), App.Vector(9.5, 39.9, 0)),
    Part.LineSegment(App.Vector(9.5, 39.9, 0), App.Vector(10.5, 39.6, 0)),
], False)
sketch12.addConstraint([
    Sketcher.Constraint("Coincident", 0, 2, 1, 2),
    Sketcher.Constraint("Coincident", 1, 1, 2, 1),
    Sketcher.Constraint("Coincident", 2, 2, 3, 1),
    Sketcher.Constraint("Coincident", 3, 2, 0, 1),
    Sketcher.Constraint("Equal", 0, 2),
    Sketcher.Constraint("Angle", 0, Q("75.2 deg")),
    Sketcher.Constraint("Angle", 2, Q("-103.4 deg")),
    Sketcher.Constraint("Angle", 3, Q("-14.1 deg")),
    Sketcher.Constraint("Radius", 1, 0.681295),
    Sketcher.Constraint("DistanceX", -1, 1, 1, 3, 12.158212),
    Sketcher.Constraint("DistanceY", -1, 1, 1, 3, 48.40387),
    Sketcher.Constraint("DistanceY", -1, 1, 2, 2, 39.883811),
    Sketcher.Constraint("DistanceY", -1, 1, 3, 2, 39.639759),
])
pad12 = body.newObject("PartDesign::Pad", "Pad011")
pad12.Profile = sketch12
pad12.setExpression("Length", "Params.pad12_length")
pad12.Reversed = True

# Sketch on XY plane
sketch13 = body.newObject("Sketcher::SketchObject", "Sketch012")
sketch13.AttachmentSupport = (doc.getObject("XY_Plane"), [""])
sketch13.MapMode = "FlatFace"
sketch13.AttachmentOffset = App.Placement(App.Vector(0, 0, 5), App.Rotation())
sketch13.addGeometry([
    Part.LineSegment(App.Vector(5.3, 40.7, 0), App.Vector(6.4, 49.2, 0)),
    Part.ArcOfCircle(Part.Circle(App.Vector(5.8, 49.6, 0), App.Vector(0, 0, 1), 0.7), math.radians(-160), math.radians(-34)),
    Part.LineSegment(App.Vector(5.2, 49.3, 0), App.Vector(4.3, 40.8, 0)),
    Part.LineSegment(App.Vector(4.3, 40.8, 0), App.Vector(5.3, 40.7, 0)),
], False)
sketch13.addConstraint([
    Sketcher.Constraint("Coincident", 0, 2, 1, 2),
    Sketcher.Constraint("Coincident", 1, 1, 2, 1),
    Sketcher.Constraint("Coincident", 2, 2, 3, 1),
    Sketcher.Constraint("Coincident", 3, 2, 0, 1),
    Sketcher.Constraint("Equal", 0, 2),
    Sketcher.Constraint("Angle", 2, Q("-96 deg")),
    Sketcher.Constraint("Angle", 0, Q("82.6 deg")),
    Sketcher.Constraint("Angle", 3, Q("-6.7 deg")),
    Sketcher.Constraint("Radius", 1, 0.681295),
    Sketcher.Constraint("DistanceX", -1, 1, 1, 1, 5.184588),
    Sketcher.Constraint("DistanceX", -1, 1, 3, 2, 5.280619),
    Sketcher.Constraint("DistanceX", 1, 3, 0, 2, 0.56549),
    Sketcher.Constraint("DistanceY", -1, 1, 1, 3, 49.566646),
])
pad13 = body.newObject("PartDesign::Pad", "Pad012")
pad13.Profile = sketch13
pad13.setExpression("Length", "Params.pad13_length")
pad13.Reversed = True

doc.recompute()
